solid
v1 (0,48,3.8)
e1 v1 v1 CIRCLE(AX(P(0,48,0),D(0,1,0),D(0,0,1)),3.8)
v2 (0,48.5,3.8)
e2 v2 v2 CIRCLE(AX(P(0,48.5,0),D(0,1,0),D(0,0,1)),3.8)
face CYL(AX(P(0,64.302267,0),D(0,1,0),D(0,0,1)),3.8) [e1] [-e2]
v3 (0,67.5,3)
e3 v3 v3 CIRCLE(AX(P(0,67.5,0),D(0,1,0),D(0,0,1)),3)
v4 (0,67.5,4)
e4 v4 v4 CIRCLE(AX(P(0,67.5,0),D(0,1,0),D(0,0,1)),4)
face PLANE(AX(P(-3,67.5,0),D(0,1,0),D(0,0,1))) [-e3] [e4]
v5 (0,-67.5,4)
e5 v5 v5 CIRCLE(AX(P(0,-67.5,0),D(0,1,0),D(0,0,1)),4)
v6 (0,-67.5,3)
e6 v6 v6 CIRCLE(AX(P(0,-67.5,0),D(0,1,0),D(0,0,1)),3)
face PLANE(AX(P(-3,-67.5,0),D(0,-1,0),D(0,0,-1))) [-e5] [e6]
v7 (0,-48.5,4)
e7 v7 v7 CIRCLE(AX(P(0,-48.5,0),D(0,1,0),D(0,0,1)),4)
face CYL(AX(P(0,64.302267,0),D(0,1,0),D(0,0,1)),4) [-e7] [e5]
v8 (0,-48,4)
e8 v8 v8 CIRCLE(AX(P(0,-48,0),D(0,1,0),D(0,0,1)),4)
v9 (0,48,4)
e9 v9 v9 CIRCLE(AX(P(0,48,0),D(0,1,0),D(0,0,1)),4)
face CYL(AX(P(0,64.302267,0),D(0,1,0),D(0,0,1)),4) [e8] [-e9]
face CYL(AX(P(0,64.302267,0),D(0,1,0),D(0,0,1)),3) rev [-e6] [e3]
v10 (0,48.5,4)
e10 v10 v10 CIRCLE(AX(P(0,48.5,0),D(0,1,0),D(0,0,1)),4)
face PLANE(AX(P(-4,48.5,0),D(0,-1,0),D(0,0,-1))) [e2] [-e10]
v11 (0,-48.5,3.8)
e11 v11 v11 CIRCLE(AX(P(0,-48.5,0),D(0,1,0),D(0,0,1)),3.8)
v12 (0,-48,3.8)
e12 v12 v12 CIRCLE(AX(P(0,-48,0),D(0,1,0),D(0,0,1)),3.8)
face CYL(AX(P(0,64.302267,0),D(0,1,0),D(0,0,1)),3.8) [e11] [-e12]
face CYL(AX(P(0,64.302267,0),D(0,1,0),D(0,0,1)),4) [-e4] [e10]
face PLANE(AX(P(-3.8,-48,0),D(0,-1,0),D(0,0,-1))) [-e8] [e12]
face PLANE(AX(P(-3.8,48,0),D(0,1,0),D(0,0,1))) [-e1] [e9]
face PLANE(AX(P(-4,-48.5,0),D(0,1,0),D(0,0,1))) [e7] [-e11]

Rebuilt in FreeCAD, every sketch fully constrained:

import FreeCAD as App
import Part
import Sketcher

V = App.Vector
Q = App.Units.Quantity


def add_polygon(sketch, points):
    """Adds a closed chain of lines whose ends are joined by coincident constraints."""
    first, n = sketch.GeometryCount, len(points)
    for a, b in zip(points, points[1:] + points[:1]):
        sketch.addGeometry(Part.LineSegment(App.Vector(*a, 0), App.Vector(*b, 0)), False)
    for i in range(n):
        sketch.addConstraint(Sketcher.Constraint("Coincident", first + i, 2, first + (i + 1) % n, 1))

doc = App.newDocument("Part")
body = doc.addObject("PartDesign::Body", "Body")

# Sketch on XY plane
sketch1 = body.newObject("Sketcher::SketchObject", "Sketch")
sketch1.AttachmentSupport = (doc.getObject("XY_Plane"), [""])
sketch1.MapMode = "FlatFace"
add_polygon(sketch1, [(-3, 67.5), (-4, 67.5), (-4, 48.5), (-3.8, 48.5), (-3.8, 48), (-4, 48), (-4, -48), (-3.8, -48), (-3.8, -48.5), (-4, -48.5), (-4, -67.5), (-3, -67.5)])  # lines 0-11
sketch1.addConstraint([
    Sketcher.Constraint("Horizontal", 0),
    Sketcher.Constraint("Vertical", 1),
    Sketcher.Constraint("Horizontal", 2),
    Sketcher.Constraint("Vertical", 3),
    Sketcher.Constraint("Horizontal", 4),
    Sketcher.Constraint("Vertical", 5),
    Sketcher.Constraint("Horizontal", 6),
    Sketcher.Constraint("Vertical", 7),
    Sketcher.Constraint("Horizontal", 8),
    Sketcher.Constraint("Vertical", 9),
    Sketcher.Constraint("Horizontal", 10),
    Sketcher.Constraint("Vertical", 11),
    Sketcher.Constraint("Symmetric", 3, 2, 6, 2, -1),
    Sketcher.Constraint("Symmetric", 1, 2, 8, 2, -1),
    Sketcher.Constraint("Vertical", 1, 2, 4, 2),
    Sketcher.Constraint("Equal", 1, 9),
    Sketcher.Constraint("DistanceX", 0, 2, 0, 1, Q("1 mm")),
    Sketcher.Constraint("DistanceY", 1, 2, 1, 1, Q("19 mm")),
    Sketcher.Constraint("DistanceY", 5, 2, 5, 1, Q("96 mm")),
    Sketcher.Constraint("DistanceY", 11, 1, 11, 2, Q("135 mm")),
    Sketcher.Constraint("DistanceX", 2, 1, 2, 2, Q("0.2 mm")),
    Sketcher.Constraint("DistanceX", 0, 2, -1, 1, Q("4 mm")),
])
revolution = body.newObject("PartDesign::Revolution", "Revolution")
revolution.Profile = sketch1
revolution.ReferenceAxis = (sketch1, ["V_Axis"])
revolution.Angle = 360

doc.recompute()
